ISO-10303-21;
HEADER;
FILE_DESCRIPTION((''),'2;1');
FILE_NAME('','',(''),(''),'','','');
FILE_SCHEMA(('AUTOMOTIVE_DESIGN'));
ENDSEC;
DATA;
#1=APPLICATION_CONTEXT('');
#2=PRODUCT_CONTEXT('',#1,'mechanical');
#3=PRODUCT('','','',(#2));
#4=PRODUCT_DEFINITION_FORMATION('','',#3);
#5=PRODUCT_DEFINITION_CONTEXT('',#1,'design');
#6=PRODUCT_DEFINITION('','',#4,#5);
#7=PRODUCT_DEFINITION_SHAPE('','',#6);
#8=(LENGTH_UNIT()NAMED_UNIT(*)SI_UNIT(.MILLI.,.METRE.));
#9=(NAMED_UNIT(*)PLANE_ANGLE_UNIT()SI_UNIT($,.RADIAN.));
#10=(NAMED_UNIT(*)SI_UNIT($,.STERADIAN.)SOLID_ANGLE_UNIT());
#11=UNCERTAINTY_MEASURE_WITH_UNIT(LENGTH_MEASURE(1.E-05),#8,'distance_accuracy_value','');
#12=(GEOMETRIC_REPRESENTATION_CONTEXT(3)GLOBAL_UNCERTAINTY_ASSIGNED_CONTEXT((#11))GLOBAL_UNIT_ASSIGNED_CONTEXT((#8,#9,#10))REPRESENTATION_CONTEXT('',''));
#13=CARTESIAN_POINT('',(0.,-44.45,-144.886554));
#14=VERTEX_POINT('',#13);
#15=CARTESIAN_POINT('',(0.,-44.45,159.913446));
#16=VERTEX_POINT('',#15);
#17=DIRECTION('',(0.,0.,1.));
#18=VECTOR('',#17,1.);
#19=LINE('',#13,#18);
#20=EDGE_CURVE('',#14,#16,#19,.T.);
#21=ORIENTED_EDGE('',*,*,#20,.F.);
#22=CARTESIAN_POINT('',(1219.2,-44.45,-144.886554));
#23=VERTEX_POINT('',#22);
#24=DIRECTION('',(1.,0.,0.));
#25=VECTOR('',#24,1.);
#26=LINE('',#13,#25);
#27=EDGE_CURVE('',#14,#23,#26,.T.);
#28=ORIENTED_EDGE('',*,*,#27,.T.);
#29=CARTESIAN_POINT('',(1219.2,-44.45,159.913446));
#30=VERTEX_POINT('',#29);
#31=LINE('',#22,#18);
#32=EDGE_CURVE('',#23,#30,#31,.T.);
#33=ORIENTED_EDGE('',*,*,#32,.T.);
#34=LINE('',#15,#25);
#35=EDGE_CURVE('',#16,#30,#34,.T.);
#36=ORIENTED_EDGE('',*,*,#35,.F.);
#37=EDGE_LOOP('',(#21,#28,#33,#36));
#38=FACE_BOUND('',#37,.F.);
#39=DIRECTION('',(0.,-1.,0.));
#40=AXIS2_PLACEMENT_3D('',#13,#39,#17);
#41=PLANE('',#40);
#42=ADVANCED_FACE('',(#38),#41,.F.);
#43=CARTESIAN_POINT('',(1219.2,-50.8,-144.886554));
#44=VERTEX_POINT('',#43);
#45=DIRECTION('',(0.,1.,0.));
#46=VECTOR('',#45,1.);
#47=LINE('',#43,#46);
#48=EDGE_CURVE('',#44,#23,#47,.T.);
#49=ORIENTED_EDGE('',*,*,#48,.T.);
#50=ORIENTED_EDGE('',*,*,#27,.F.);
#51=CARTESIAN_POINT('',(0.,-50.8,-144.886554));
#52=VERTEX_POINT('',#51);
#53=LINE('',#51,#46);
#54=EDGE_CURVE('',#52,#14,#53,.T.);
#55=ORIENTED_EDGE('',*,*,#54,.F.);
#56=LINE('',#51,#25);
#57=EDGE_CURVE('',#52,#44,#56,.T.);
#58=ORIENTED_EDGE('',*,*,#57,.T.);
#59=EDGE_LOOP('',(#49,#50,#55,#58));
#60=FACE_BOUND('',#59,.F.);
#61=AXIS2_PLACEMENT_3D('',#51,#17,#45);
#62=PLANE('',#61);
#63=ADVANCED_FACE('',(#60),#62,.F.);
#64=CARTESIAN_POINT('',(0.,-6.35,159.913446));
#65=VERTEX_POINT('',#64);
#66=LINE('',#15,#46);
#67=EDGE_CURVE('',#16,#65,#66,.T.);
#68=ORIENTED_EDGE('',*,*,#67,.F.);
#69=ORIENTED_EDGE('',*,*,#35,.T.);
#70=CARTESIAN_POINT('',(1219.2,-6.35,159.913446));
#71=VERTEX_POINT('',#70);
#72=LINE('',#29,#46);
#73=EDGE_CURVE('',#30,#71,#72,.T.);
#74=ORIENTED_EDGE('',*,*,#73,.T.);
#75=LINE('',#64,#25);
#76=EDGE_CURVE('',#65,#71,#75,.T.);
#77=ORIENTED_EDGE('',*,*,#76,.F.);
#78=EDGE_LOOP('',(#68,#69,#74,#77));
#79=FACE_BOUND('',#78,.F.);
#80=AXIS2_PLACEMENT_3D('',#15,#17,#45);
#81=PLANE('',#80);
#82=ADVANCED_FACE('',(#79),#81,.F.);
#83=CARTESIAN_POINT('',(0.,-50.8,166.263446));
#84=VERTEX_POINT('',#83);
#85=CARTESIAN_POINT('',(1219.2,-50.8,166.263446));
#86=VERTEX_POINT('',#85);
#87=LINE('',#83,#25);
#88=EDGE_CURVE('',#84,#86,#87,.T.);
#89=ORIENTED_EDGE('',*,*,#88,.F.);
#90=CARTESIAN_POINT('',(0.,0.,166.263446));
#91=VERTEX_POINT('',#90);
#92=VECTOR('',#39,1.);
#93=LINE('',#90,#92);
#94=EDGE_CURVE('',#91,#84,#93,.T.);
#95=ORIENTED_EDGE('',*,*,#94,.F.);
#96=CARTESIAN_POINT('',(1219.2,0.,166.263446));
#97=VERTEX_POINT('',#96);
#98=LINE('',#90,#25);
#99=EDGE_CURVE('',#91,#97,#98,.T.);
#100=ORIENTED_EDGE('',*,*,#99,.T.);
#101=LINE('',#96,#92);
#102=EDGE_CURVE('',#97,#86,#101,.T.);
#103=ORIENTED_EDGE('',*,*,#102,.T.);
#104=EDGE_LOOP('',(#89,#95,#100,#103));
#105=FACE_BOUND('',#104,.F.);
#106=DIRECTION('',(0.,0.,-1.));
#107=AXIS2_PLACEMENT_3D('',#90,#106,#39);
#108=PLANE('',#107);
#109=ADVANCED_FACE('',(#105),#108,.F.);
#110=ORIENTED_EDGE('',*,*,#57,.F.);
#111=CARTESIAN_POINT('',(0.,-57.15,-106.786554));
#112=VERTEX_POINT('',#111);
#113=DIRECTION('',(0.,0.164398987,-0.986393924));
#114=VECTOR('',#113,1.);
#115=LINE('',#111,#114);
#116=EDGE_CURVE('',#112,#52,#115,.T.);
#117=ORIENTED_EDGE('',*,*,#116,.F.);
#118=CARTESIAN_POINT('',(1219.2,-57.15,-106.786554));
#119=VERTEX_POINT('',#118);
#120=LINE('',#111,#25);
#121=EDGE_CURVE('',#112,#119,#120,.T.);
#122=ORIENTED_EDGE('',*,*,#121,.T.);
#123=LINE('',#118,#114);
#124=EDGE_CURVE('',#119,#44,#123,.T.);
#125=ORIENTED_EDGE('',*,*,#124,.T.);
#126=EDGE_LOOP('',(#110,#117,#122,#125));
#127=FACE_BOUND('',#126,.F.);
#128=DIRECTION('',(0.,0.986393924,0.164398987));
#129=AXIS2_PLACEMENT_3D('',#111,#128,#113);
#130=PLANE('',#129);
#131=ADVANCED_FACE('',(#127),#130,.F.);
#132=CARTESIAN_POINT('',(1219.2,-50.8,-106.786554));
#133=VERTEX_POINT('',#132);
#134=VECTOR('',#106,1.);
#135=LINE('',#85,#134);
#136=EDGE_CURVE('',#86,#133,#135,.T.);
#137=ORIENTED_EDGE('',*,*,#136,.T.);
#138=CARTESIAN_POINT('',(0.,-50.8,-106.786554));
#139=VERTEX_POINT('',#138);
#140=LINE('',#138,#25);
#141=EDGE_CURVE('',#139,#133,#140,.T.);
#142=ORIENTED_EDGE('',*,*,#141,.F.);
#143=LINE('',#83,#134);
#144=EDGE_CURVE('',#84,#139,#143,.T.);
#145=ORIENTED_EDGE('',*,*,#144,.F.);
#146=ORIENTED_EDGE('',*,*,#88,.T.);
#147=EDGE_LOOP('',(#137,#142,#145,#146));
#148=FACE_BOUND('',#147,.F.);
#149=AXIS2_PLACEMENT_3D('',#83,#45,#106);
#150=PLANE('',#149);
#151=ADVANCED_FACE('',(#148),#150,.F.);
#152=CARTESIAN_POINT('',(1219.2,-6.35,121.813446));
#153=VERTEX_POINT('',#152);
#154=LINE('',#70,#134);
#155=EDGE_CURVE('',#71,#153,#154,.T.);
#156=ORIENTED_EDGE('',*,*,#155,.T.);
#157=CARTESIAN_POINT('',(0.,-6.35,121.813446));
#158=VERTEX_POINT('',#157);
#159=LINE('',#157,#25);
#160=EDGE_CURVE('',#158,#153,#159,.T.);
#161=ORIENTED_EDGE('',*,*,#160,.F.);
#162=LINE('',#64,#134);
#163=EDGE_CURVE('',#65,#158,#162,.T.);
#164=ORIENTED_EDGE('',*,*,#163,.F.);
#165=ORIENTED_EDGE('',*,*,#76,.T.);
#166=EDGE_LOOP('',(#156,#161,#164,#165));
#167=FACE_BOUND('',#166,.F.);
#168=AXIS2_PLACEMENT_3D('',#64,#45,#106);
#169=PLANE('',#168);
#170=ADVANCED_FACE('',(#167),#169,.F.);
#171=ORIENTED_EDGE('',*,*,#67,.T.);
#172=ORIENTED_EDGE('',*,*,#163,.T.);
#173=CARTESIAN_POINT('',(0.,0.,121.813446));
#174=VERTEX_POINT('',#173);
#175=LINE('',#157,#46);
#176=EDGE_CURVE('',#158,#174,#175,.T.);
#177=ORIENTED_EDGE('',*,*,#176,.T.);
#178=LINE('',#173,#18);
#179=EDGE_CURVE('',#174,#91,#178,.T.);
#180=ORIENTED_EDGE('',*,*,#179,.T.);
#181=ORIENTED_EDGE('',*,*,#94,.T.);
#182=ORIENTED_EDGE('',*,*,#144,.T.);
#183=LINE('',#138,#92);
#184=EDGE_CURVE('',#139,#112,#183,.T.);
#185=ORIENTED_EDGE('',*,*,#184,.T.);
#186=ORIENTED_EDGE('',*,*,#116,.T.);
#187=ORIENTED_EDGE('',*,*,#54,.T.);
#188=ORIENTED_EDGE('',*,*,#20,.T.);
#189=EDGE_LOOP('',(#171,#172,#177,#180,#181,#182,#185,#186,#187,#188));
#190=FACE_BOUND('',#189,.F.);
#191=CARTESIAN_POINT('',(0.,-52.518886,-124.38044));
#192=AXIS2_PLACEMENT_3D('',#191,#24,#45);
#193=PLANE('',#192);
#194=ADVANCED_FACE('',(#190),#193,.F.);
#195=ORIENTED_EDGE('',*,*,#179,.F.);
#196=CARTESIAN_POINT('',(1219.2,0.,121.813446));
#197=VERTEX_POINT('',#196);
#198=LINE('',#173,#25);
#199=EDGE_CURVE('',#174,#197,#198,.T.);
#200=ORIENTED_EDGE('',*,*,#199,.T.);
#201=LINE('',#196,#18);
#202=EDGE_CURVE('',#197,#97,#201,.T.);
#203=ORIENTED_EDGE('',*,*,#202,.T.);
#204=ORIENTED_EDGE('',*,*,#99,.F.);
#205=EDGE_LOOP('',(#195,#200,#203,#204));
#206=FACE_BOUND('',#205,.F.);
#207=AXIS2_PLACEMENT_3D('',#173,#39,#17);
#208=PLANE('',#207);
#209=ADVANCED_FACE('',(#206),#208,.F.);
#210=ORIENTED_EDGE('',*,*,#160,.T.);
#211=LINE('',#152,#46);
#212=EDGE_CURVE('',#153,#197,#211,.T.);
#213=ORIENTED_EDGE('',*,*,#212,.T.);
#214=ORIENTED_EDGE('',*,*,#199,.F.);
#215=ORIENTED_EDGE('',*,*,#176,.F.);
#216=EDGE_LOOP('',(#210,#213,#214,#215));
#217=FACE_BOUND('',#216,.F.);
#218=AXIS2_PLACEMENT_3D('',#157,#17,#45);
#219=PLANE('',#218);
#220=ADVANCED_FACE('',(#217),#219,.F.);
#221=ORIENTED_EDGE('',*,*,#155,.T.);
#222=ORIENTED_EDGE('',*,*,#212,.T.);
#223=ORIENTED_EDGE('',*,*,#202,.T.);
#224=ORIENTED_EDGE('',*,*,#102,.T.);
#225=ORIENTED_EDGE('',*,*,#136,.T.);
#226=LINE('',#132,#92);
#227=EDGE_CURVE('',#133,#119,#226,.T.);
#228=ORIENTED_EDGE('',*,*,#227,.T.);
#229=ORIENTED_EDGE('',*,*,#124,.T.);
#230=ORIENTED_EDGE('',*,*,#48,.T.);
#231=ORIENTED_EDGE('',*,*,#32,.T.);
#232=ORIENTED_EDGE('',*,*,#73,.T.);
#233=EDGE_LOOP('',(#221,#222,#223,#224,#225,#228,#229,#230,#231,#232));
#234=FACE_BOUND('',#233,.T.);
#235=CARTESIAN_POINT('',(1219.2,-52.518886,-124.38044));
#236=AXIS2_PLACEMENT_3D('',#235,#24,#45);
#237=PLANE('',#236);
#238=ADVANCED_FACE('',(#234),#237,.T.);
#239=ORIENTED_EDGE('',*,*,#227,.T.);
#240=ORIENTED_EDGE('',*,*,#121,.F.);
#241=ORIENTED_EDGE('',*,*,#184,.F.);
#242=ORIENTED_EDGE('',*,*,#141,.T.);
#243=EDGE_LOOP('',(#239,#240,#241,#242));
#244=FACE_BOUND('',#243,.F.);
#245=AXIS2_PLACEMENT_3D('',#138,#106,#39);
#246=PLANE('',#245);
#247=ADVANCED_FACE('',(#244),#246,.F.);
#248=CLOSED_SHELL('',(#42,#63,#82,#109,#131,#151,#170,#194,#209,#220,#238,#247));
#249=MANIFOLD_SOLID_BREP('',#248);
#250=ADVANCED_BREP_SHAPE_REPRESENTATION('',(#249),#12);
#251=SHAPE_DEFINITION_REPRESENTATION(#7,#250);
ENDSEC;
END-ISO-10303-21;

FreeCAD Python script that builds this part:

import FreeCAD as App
import Part
import Sketcher

V = App.Vector
Q = App.Units.Quantity


def add_polygon(sketch, points):
    """Adds a closed chain of lines whose ends are joined by coincident constraints."""
    first, n = sketch.GeometryCount, len(points)
    for a, b in zip(points, points[1:] + points[:1]):
        sketch.addGeometry(Part.LineSegment(App.Vector(*a, 0), App.Vector(*b, 0)), False)
    for i in range(n):
        sketch.addConstraint(Sketcher.Constraint("Coincident", first + i, 2, first + (i + 1) % n, 1))

doc = App.newDocument("Part")
body = doc.addObject("PartDesign::Body", "Body")

# Sketch on YZ plane
sketch1 = body.newObject("Sketcher::SketchObject", "Sketch")
sketch1.AttachmentSupport = (doc.getObject("YZ_Plane"), [""])
sketch1.MapMode = "FlatFace"
add_polygon(sketch1, [(-44, -145), (-44, 160), (-6, 160), (-6, 122), (0, 122), (0, 166), (-51, 166), (-51, -145)])  # lines 0-7
sketch1.addConstraint([
    Sketcher.Constraint("Vertical", 0),
    Sketcher.Constraint("Horizontal", 1),
    Sketcher.Constraint("Vertical", 2),
    Sketcher.Constraint("Horizontal", 3),
    Sketcher.Constraint("Vertical", 4),
    Sketcher.Constraint("Horizontal", 5),
    Sketcher.Constraint("Vertical", 6),
    Sketcher.Constraint("Horizontal", 7),
    Sketcher.Constraint("PointOnObject", 3, 2, -2),
    Sketcher.Constraint("Equal", 3, 7),
    Sketcher.Constraint("Equal", 1, 2),
    Sketcher.Constraint("DistanceX", 5, 2, 5, 1, Q("2 in")),
    Sketcher.Constraint("DistanceY", 0, 1, 0, 2, Q("12 in")),
    Sketcher.Constraint("DistanceX", 1, 1, 1, 2, Q("1.5 in")),
    Sketcher.Constraint("DistanceY", 4, 1, 4, 2, Q("1.75 in")),
    Sketcher.Constraint("DistanceY", -1, 1, 0, 2, Q("159.913446 mm")),
])
pad1 = body.newObject("PartDesign::Pad", "Pad")
pad1.Profile = sketch1
pad1.Length = Q("48 in")

# Sketch on YZ plane
sketch2 = body.newObject("Sketcher::SketchObject", "Sketch001")
sketch2.AttachmentSupport = (doc.getObject("YZ_Plane"), [""])
sketch2.MapMode = "FlatFace"
add_polygon(sketch2, [(-57, -107), (-51, -145), (-51, -107)])  # lines 0-2
sketch2.addConstraint([
    Sketcher.Constraint("Vertical", 1),
    Sketcher.Constraint("Horizontal", 2),
    Sketcher.Constraint("DistanceY", 1, 1, 1, 2, Q("1.5 in")),
    Sketcher.Constraint("DistanceX", 0, 2, -1, 1, Q("2 in")),
    Sketcher.Constraint("DistanceX", 2, 2, 2, 1, Q("0.25 in")),
    Sketcher.Constraint("DistanceY", 0, 2, -1, 1, Q("144.886554 mm")),
])
pad2 = body.newObject("PartDesign::Pad", "Pad001")
pad2.Profile = sketch2
pad2.Length = Q("48 in")

doc.recompute()
